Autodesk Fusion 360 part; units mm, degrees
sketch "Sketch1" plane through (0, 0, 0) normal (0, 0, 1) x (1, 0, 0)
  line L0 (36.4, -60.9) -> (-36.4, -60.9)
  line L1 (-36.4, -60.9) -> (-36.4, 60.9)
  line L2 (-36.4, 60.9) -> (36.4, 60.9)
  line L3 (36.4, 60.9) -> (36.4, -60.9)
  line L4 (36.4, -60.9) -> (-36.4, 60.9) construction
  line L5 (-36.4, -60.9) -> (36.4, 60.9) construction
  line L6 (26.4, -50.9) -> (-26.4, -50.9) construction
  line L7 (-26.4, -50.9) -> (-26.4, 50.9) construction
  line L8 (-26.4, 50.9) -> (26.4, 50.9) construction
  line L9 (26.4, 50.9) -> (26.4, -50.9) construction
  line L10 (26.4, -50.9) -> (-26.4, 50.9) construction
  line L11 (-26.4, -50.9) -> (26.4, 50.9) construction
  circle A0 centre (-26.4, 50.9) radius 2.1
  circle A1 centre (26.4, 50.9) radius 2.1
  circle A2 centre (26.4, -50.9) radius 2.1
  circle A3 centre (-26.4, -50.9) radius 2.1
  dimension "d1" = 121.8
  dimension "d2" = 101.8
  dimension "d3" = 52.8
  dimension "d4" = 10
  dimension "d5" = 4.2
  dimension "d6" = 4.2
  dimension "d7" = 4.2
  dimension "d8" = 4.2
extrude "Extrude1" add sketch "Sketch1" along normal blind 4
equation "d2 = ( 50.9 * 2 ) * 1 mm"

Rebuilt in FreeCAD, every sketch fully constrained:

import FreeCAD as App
import Part
import Sketcher
from FreeCAD import Vector


def add_polygon(sketch, points):
    """Adds a closed chain of lines whose ends are joined by coincident constraints."""
    first, n = sketch.GeometryCount, len(points)
    for a, b in zip(points, points[1:] + points[:1]):
        sketch.addGeometry(Part.LineSegment(App.Vector(*a, 0), App.Vector(*b, 0)), False)
    for i in range(n):
        sketch.addConstraint(Sketcher.Constraint("Coincident", first + i, 2, first + (i + 1) % n, 1))

doc = App.newDocument("Part")
body = doc.addObject("PartDesign::Body", "Body")

sketch1 = body.newObject("Sketcher::SketchObject", "Sketch")
sketch1.AttachmentSupport = (doc.getObject("XY_Plane"), [""])
sketch1.MapMode = "FlatFace"
add_polygon(sketch1, [(-36.4, -60.9), (36.4, -60.9), (36.4, 60.9), (-36.4, 60.9)])
sketch1.addGeometry(Part.Circle(Vector(-26.4, -50.9, 0), Vector(0, 0, 1), 2.1), False)
sketch1.addGeometry(Part.Circle(Vector(26.4, -50.9, 0), Vector(0, 0, 1), 2.1), False)
sketch1.addGeometry(Part.Circle(Vector(-26.4, 50.9, 0), Vector(0, 0, 1), 2.1), False)
sketch1.addGeometry(Part.Circle(Vector(26.4, 50.9, 0), Vector(0, 0, 1), 2.1), False)
sketch1.addConstraint(Sketcher.Constraint("Horizontal", 0))
sketch1.addConstraint(Sketcher.Constraint("Vertical", 1))
sketch1.addConstraint(Sketcher.Constraint("Horizontal", 2))
sketch1.addConstraint(Sketcher.Constraint("Vertical", 3))
sketch1.addConstraint(Sketcher.Constraint("Equal", 4, 5))
sketch1.addConstraint(Sketcher.Constraint("Equal", 5, 6))
sketch1.addConstraint(Sketcher.Constraint("Equal", 6, 7))
sketch1.addConstraint(Sketcher.Constraint("Symmetric", 5, 3, 6, 3, -1, 1))
sketch1.addConstraint(Sketcher.Constraint("Symmetric", 4, 3, 7, 3, -1, 1))
sketch1.addConstraint(Sketcher.Constraint("Symmetric", 0, 2, 2, 2, -1, 1))
sketch1.addConstraint(Sketcher.Constraint("Symmetric", 4, 3, 5, 3, -2))
sketch1.addConstraint(Sketcher.Constraint("Diameter", 4, 4.2))
sketch1.addConstraint(Sketcher.Constraint("DistanceY", 1, 1, 1, 2, 121.8))
sketch1.addConstraint(Sketcher.Constraint("DistanceX", 5, 3, 0, 2, 10.0))
sketch1.addConstraint(Sketcher.Constraint("DistanceY", 0, 2, 5, 3, 10.0))
sketch1.addConstraint(Sketcher.Constraint("DistanceX", 4, 3, 5, 3, 52.8))
pad1 = body.newObject("PartDesign::Pad", "Pad")
pad1.Profile = sketch1
pad1.Length = 4

doc.recompute()
